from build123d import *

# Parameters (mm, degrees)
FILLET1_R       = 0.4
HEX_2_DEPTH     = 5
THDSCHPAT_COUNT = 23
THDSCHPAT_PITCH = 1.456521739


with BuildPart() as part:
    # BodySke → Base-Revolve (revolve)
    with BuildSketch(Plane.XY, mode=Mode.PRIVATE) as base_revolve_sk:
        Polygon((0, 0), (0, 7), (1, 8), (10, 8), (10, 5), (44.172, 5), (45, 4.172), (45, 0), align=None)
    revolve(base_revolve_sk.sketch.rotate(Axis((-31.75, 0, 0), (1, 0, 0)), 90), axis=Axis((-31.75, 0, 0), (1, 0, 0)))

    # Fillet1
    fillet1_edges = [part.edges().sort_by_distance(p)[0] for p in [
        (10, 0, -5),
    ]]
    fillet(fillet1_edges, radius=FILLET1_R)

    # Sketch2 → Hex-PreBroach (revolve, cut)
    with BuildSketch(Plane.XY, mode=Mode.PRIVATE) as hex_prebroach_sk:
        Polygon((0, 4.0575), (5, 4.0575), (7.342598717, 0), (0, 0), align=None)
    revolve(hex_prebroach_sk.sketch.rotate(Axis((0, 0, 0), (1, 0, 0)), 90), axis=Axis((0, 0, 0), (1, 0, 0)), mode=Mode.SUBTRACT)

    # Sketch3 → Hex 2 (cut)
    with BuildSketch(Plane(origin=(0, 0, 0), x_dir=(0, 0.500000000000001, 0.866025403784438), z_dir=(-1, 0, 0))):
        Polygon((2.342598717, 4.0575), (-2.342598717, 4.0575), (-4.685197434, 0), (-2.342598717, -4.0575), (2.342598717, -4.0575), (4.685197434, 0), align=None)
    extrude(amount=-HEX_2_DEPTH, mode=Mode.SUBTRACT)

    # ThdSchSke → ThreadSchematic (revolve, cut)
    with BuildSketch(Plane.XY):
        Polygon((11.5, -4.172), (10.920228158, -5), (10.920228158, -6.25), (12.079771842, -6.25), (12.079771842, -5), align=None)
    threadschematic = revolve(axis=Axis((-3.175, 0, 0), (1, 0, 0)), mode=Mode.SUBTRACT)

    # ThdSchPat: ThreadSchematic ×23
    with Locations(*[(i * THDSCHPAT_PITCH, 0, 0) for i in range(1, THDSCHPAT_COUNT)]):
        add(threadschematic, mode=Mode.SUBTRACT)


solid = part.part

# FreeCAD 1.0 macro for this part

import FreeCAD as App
import Part
import Sketcher
from FreeCAD import Vector
Q = App.Units.Quantity


def edges_at(feature, points):
    """Names of the edges that pass closest to the given points."""
    edges = feature.Shape.Edges
    near = lambda p: min(range(len(edges)), key=lambda i: edges[i].distToShape(Part.Vertex(*p))[0])
    return sorted({f"Edge{near(p) + 1}" for p in points})

doc = App.newDocument("Part")
body = doc.addObject("PartDesign::Body", "Body")

# Sketch on XY plane
sketch1 = body.newObject("Sketcher::SketchObject", "Sketch")
sketch1.AttachmentSupport = (doc.getObject("XY_Plane"), [""])
sketch1.MapMode = "FlatFace"
sketch1.addGeometry([
    Part.LineSegment(Vector(0, 7, 0), Vector(0, 0, 0)),  # 0
    Part.LineSegment(Vector(0, 0, 0), Vector(45, 0, 0)),  # 1
    Part.LineSegment(Vector(45, 0, 0), Vector(45, 4.2, 0)),  # 2
    Part.LineSegment(Vector(45, 4.2, 0), Vector(44.2, 5, 0)),  # 3
    Part.LineSegment(Vector(44.2, 5, 0), Vector(10, 5, 0)),  # 4
    Part.LineSegment(Vector(10, 5, 0), Vector(10, 8, 0)),  # 5
    Part.LineSegment(Vector(10, 8, 0), Vector(1, 8, 0)),  # 6
    Part.LineSegment(Vector(1, 8, 0), Vector(0, 7, 0)),  # 7
], False)
sketch1.addConstraint([
    Sketcher.Constraint("Coincident", 0, 2, 1, 1),
    Sketcher.Constraint("Coincident", 1, 2, 2, 1),
    Sketcher.Constraint("Coincident", 2, 2, 3, 1),
    Sketcher.Constraint("Coincident", 3, 2, 4, 1),
    Sketcher.Constraint("Coincident", 4, 2, 5, 1),
    Sketcher.Constraint("Coincident", 5, 2, 6, 1),
    Sketcher.Constraint("Coincident", 6, 2, 7, 1),
    Sketcher.Constraint("Coincident", 7, 2, 0, 1),
    Sketcher.Constraint("Vertical", 0),
    Sketcher.Constraint("Horizontal", 1),
    Sketcher.Constraint("Vertical", 2),
    Sketcher.Constraint("Horizontal", 4),
    Sketcher.Constraint("Vertical", 5),
    Sketcher.Constraint("Horizontal", 6),
    Sketcher.Constraint("Coincident", 0, 2, -1, 1),
    Sketcher.Constraint("Perpendicular", 3, 7),
    Sketcher.Constraint("DistanceX", 1, 1, 1, 2, 45.0),
    Sketcher.Constraint("DistanceX", 6, 2, 6, 1, 9.0),
    Sketcher.Constraint("DistanceY", 0, 2, 0, 1, 7.0),
    Sketcher.Constraint("DistanceY", 5, 1, 5, 2, 3.0),
    Sketcher.Constraint("Angle", 3, Q("135 deg")),
    Sketcher.Constraint("DistanceY", -1, 1, 3, 2, 5.0),
    Sketcher.Constraint("DistanceX", 4, 2, 4, 1, 34.172),
])
revolution = body.newObject("PartDesign::Revolution", "Revolution")
revolution.Profile = sketch1
revolution.ReferenceAxis = (sketch1, ["H_Axis"])
revolution.Angle = 360
doc.recompute()

fillet = body.newObject("PartDesign::Fillet", "Fillet")
fillet.Base = (revolution, edges_at(revolution, [(10, 0, -5)]))
fillet.Radius = 0.4

# Sketch on XY plane
sketch2 = body.newObject("Sketcher::SketchObject", "Sketch001")
sketch2.AttachmentSupport = (doc.getObject("XY_Plane"), [""])
sketch2.MapMode = "FlatFace"
sketch2.addGeometry([
    Part.LineSegment(Vector(5, 4.1, 0), Vector(0, 4.1, 0)),
    Part.LineSegment(Vector(0, 4.1, 0), Vector(0, 0, 0)),
    Part.LineSegment(Vector(0, 0, 0), Vector(7.3, 0, 0)),
    Part.LineSegment(Vector(7.3, 0, 0), Vector(5, 4.1, 0)),
], False)
sketch2.addConstraint([
    Sketcher.Constraint("Coincident", 0, 2, 1, 1),
    Sketcher.Constraint("Coincident", 1, 2, 2, 1),
    Sketcher.Constraint("Coincident", 2, 2, 3, 1),
    Sketcher.Constraint("Coincident", 3, 2, 0, 1),
    Sketcher.Constraint("Horizontal", 0),
    Sketcher.Constraint("Vertical", 1),
    Sketcher.Constraint("Horizontal", 2),
    Sketcher.Constraint("Coincident", 1, 2, -1, 1),
    Sketcher.Constraint("DistanceX", 0, 2, 0, 1, 5.0),
    Sketcher.Constraint("Angle", 3, Q("120 deg")),
    Sketcher.Constraint("DistanceX", 2, 1, 2, 2, 7.342599),
])
groove = body.newObject("PartDesign::Groove", "Groove")
groove.Profile = sketch2
groove.ReferenceAxis = (sketch2, ["H_Axis"])
groove.Angle = 360

# Sketch on YZ plane
sketch3 = body.newObject("Sketcher::SketchObject", "Sketch002")
sketch3.AttachmentSupport = (doc.getObject("YZ_Plane"), [""])
sketch3.MapMode = "FlatFace"
sketch3.addGeometry([
    Part.LineSegment(Vector(4.7, 0, 0), Vector(2.3, -4.1, 0)),  # 0
    Part.LineSegment(Vector(2.3, -4.1, 0), Vector(-2.3, -4.1, 0)),  # 1
    Part.LineSegment(Vector(-2.3, -4.1, 0), Vector(-4.7, 0, 0)),  # 2
    Part.LineSegment(Vector(-4.7, 0, 0), Vector(-2.3, 4.1, 0)),  # 3
    Part.LineSegment(Vector(-2.3, 4.1, 0), Vector(2.3, 4.1, 0)),  # 4
    Part.LineSegment(Vector(2.3, 4.1, 0), Vector(4.7, 0, 0)),  # 5
], False)
sketch3.addConstraint([
    Sketcher.Constraint("Coincident", 0, 2, 1, 1),
    Sketcher.Constraint("Coincident", 1, 2, 2, 1),
    Sketcher.Constraint("Coincident", 2, 2, 3, 1),
    Sketcher.Constraint("Coincident", 3, 2, 4, 1),
    Sketcher.Constraint("Coincident", 4, 2, 5, 1),
    Sketcher.Constraint("Coincident", 5, 2, 0, 1),
    Sketcher.Constraint("Horizontal", 1),
    Sketcher.Constraint("Horizontal", 4),
    Sketcher.Constraint("Symmetric", 0, 2, 3, 2, -1, 1),
    Sketcher.Constraint("Symmetric", 2, 2, 5, 2, -1, 1),
    Sketcher.Constraint("PointOnObject", 2, 2, -1),
    Sketcher.Constraint("Parallel", 2, 5),
    Sketcher.Constraint("Vertical", 1, 2, 3, 2),
    Sketcher.Constraint("Angle", 0, Q("-120 deg")),
    Sketcher.Constraint("DistanceY", 1, 2, 3, 2, 8.115),
    Sketcher.Constraint("DistanceX", -1, 1, 0, 2, 2.342599),
])
pocket1 = body.newObject("PartDesign::Pocket", "Pocket")
pocket1.Profile = sketch3
pocket1.Length = 5
pocket1.Reversed = True

# Sketch on XY plane
sketch4 = body.newObject("Sketcher::SketchObject", "Sketch003")
sketch4.AttachmentSupport = (doc.getObject("XY_Plane"), [""])
sketch4.MapMode = "FlatFace"
sketch4.addGeometry([
    Part.LineSegment(Vector(11.5, -4.2, 0), Vector(10.9, -5, 0)),  # 0
    Part.LineSegment(Vector(10.9, -5, 0), Vector(10.9, -6.2, 0)),  # 1
    Part.LineSegment(Vector(10.9, -6.2, 0), Vector(12.1, -6.2, 0)),  # 2
    Part.LineSegment(Vector(12.1, -6.2, 0), Vector(12.1, -5, 0)),  # 3
    Part.LineSegment(Vector(12.1, -5, 0), Vector(11.5, -4.2, 0)),  # 4
], False)
sketch4.addConstraint([
    Sketcher.Constraint("Coincident", 0, 2, 1, 1),
    Sketcher.Constraint("Coincident", 1, 2, 2, 1),
    Sketcher.Constraint("Coincident", 2, 2, 3, 1),
    Sketcher.Constraint("Coincident", 3, 2, 4, 1),
    Sketcher.Constraint("Coincident", 4, 2, 0, 1),
    Sketcher.Constraint("Vertical", 1),
    Sketcher.Constraint("Horizontal", 2),
    Sketcher.Constraint("Vertical", 3),
    Sketcher.Constraint("Horizontal", 0, 2, 3, 2),
    Sketcher.Constraint("Equal", 0, 4),
    Sketcher.Constraint("Angle", 0, Q("-125 deg")),
    Sketcher.Constraint("DistanceY", 0, 2, -1, 1, 5.0),
    Sketcher.Constraint("DistanceY", 1, 2, 1, 1, 1.25),
    Sketcher.Constraint("DistanceX", -1, 1, 4, 2, 11.5),
    Sketcher.Constraint("DistanceY", 4, 2, -1, 1, 4.172),
])
groove2 = body.newObject("PartDesign::Groove", "Groove001")
groove2.Profile = sketch4
groove2.ReferenceAxis = (sketch4, ["H_Axis"])
groove2.Angle = 360
doc.recompute()

linearpattern = body.newObject("PartDesign::LinearPattern", "LinearPattern")
linearpattern.Originals = [groove2]
linearpattern.Direction = (doc.getObject("X_Axis"), [""])
linearpattern.Mode = "offset"
linearpattern.Offset = 1.456522
linearpattern.Occurrences = 23
body.Tip = linearpattern

doc.recompute()
